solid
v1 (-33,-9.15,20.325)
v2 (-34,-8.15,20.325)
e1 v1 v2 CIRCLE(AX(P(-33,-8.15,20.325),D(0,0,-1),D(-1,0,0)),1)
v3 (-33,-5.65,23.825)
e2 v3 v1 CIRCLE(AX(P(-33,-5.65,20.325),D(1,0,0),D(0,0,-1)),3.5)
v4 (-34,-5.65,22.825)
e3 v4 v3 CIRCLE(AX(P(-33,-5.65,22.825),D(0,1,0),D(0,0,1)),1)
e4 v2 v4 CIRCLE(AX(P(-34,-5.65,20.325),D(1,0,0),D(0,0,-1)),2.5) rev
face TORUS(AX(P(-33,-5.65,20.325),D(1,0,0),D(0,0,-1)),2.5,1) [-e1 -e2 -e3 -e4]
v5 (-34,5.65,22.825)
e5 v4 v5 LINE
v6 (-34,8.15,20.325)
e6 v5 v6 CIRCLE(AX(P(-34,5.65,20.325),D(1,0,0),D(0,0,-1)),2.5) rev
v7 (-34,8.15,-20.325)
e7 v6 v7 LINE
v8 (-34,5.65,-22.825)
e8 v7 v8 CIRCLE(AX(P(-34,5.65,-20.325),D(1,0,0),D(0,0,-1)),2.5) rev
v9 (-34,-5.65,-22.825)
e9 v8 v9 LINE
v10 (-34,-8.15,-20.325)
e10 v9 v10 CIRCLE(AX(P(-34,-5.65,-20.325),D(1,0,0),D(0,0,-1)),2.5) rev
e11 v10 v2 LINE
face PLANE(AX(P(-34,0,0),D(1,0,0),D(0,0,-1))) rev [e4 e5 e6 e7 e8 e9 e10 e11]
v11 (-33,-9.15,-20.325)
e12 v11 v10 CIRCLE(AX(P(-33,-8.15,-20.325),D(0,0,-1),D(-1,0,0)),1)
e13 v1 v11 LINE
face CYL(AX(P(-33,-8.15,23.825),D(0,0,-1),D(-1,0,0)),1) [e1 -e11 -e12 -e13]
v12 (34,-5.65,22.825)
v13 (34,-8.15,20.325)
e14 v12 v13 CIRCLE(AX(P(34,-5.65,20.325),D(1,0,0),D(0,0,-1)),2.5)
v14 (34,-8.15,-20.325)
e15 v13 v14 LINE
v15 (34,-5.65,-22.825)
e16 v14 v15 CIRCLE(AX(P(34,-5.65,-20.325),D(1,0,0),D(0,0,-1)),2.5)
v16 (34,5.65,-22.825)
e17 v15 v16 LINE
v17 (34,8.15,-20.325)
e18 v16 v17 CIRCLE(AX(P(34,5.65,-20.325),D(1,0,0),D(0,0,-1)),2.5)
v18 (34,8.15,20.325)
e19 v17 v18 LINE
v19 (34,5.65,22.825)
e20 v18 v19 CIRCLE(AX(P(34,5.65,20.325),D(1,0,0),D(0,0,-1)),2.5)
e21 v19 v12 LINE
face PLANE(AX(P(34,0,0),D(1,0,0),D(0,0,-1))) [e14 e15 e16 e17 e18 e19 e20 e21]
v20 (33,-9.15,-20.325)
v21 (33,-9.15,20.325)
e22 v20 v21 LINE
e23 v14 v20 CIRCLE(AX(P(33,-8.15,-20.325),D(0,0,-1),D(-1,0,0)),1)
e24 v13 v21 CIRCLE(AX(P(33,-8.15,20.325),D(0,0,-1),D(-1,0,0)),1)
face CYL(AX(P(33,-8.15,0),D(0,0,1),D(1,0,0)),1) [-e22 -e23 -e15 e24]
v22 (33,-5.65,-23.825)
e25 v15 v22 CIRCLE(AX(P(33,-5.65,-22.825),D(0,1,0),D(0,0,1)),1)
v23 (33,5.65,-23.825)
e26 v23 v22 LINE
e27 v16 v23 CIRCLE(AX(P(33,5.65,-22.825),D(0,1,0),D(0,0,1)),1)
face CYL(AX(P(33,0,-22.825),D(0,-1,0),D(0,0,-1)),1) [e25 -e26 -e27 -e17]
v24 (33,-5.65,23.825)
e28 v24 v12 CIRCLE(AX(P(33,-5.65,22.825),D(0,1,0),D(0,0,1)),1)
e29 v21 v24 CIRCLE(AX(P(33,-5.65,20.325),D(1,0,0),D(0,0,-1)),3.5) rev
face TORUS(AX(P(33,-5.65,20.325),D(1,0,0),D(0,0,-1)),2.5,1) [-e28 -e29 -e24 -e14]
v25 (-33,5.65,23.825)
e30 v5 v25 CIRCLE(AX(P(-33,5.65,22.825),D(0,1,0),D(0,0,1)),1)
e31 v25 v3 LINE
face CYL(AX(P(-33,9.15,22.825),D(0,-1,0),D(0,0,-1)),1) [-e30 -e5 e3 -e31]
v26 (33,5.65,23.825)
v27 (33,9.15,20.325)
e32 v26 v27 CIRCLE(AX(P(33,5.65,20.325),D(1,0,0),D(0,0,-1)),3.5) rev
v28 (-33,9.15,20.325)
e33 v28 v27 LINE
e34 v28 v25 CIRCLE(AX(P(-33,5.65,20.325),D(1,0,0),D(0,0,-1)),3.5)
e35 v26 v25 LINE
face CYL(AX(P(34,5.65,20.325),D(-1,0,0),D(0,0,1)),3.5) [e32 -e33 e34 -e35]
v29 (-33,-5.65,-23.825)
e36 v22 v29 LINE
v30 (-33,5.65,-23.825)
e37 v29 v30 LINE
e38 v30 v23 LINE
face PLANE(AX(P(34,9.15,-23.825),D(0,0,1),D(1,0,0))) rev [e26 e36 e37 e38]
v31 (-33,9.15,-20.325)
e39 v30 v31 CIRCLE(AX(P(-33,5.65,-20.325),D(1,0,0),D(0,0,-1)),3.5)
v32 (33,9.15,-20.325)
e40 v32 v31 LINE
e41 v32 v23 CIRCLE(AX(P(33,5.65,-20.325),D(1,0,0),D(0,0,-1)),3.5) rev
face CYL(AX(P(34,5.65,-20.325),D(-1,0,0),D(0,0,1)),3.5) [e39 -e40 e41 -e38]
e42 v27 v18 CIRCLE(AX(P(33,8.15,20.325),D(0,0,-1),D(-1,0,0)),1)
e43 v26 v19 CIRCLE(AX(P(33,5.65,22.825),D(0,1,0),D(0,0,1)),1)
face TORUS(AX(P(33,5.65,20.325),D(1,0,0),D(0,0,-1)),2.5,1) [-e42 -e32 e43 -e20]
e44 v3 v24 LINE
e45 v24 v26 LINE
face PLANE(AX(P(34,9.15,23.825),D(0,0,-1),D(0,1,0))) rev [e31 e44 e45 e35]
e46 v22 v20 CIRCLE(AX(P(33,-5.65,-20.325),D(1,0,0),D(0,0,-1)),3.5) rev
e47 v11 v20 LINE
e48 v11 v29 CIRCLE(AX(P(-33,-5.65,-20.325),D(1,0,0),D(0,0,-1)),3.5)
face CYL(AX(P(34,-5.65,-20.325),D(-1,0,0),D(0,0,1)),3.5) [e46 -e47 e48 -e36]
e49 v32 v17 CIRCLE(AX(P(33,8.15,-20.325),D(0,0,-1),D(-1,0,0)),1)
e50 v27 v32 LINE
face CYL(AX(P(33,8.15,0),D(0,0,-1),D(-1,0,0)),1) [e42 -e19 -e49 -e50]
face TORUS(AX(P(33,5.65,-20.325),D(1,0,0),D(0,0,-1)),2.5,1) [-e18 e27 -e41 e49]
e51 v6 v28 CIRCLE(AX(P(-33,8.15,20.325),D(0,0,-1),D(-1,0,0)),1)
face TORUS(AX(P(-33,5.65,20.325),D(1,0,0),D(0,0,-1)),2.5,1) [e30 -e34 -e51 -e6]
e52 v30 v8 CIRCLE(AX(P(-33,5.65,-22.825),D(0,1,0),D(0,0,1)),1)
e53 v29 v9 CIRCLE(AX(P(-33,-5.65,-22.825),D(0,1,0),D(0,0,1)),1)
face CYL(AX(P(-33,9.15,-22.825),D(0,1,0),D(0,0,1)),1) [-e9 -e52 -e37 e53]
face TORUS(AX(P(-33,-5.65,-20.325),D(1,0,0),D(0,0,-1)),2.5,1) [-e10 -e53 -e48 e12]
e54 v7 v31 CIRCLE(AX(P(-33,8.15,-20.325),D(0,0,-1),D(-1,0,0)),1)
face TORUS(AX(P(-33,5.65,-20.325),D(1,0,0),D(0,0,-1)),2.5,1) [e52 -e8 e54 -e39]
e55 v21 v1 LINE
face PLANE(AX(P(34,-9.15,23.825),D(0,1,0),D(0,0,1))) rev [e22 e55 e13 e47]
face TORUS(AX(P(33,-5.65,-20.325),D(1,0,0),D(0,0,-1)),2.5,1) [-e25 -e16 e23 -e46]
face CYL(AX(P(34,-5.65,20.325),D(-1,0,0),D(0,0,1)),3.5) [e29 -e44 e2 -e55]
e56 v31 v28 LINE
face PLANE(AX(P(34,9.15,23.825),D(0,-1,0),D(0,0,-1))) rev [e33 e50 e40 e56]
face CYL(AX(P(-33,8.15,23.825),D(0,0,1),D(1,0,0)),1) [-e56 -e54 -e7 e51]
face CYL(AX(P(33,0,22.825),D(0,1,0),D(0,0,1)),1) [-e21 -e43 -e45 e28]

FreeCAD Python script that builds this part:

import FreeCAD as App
import Part
import Sketcher


def edges_at(feature, points):
    """Names of the edges that pass closest to the given points."""
    edges = feature.Shape.Edges
    near = lambda p: min(range(len(edges)), key=lambda i: edges[i].distToShape(Part.Vertex(*p))[0])
    return sorted({f"Edge{near(p) + 1}" for p in points})


def add_polygon(sketch, points):
    """Adds a closed chain of lines whose ends are joined by coincident constraints."""
    first, n = sketch.GeometryCount, len(points)
    for a, b in zip(points, points[1:] + points[:1]):
        sketch.addGeometry(Part.LineSegment(App.Vector(*a, 0), App.Vector(*b, 0)), False)
    for i in range(n):
        sketch.addConstraint(Sketcher.Constraint("Coincident", first + i, 2, first + (i + 1) % n, 1))

doc = App.newDocument("Part")
body = doc.addObject("PartDesign::Body", "Body")

# Sketch on YZ plane
sketch1 = body.newObject("Sketcher::SketchObject", "Sketch")
sketch1.AttachmentSupport = (doc.getObject("YZ_Plane"), [""])
sketch1.MapMode = "FlatFace"
add_polygon(sketch1, [(9, 24), (-9, 24), (-9, -24), (9, -24)])  # lines 0-3
sketch1.addConstraint([
    Sketcher.Constraint("Horizontal", 0),
    Sketcher.Constraint("Vertical", 1),
    Sketcher.Constraint("Horizontal", 2),
    Sketcher.Constraint("Vertical", 3),
    Sketcher.Constraint("Symmetric", 0, 2, 2, 2, -1, 1),
    Sketcher.Constraint("DistanceX", 0, 2, 0, 1, 18.3),
    Sketcher.Constraint("DistanceY", 1, 2, 1, 1, 47.65),
])
pad1 = body.newObject("PartDesign::Pad", "Pad")
pad1.Profile = sketch1
pad1.Length = 68
pad1.Midplane = True
doc.recompute()

fillet = body.newObject("PartDesign::Fillet", "Fillet")
fillet.Base = (pad1, edges_at(pad1, [
    (0, -9.15, -23.825),
    (0, -9.15, 23.825),
    (0, 9.15, 23.825),
    (0, 9.15, -23.825),
]))
fillet.Radius = 3.5
doc.recompute()

fillet2 = body.newObject("PartDesign::Fillet", "Fillet001")
fillet2.Base = (fillet, edges_at(fillet, [
    (-34, -9.15, 0),
    (34, -9.15, 0),
    (-34, 0, -23.825),
    (-34, 0, 23.825),
    (-34, 9.15, 0),
    (-34, 8.125, -22.8),
    (-34, 8.125, 22.8),
    (-34, -8.125, -22.8),
    (-34, -8.125, 22.8),
    (34, 0, 23.825),
    (34, 0, -23.825),
    (34, 9.15, 0),
    (34, 8.125, -22.8),
    (34, 8.125, 22.8),
    (34, -8.125, -22.8),
    (34, -8.125, 22.8),
]))
fillet2.Radius = 1

doc.recompute()
